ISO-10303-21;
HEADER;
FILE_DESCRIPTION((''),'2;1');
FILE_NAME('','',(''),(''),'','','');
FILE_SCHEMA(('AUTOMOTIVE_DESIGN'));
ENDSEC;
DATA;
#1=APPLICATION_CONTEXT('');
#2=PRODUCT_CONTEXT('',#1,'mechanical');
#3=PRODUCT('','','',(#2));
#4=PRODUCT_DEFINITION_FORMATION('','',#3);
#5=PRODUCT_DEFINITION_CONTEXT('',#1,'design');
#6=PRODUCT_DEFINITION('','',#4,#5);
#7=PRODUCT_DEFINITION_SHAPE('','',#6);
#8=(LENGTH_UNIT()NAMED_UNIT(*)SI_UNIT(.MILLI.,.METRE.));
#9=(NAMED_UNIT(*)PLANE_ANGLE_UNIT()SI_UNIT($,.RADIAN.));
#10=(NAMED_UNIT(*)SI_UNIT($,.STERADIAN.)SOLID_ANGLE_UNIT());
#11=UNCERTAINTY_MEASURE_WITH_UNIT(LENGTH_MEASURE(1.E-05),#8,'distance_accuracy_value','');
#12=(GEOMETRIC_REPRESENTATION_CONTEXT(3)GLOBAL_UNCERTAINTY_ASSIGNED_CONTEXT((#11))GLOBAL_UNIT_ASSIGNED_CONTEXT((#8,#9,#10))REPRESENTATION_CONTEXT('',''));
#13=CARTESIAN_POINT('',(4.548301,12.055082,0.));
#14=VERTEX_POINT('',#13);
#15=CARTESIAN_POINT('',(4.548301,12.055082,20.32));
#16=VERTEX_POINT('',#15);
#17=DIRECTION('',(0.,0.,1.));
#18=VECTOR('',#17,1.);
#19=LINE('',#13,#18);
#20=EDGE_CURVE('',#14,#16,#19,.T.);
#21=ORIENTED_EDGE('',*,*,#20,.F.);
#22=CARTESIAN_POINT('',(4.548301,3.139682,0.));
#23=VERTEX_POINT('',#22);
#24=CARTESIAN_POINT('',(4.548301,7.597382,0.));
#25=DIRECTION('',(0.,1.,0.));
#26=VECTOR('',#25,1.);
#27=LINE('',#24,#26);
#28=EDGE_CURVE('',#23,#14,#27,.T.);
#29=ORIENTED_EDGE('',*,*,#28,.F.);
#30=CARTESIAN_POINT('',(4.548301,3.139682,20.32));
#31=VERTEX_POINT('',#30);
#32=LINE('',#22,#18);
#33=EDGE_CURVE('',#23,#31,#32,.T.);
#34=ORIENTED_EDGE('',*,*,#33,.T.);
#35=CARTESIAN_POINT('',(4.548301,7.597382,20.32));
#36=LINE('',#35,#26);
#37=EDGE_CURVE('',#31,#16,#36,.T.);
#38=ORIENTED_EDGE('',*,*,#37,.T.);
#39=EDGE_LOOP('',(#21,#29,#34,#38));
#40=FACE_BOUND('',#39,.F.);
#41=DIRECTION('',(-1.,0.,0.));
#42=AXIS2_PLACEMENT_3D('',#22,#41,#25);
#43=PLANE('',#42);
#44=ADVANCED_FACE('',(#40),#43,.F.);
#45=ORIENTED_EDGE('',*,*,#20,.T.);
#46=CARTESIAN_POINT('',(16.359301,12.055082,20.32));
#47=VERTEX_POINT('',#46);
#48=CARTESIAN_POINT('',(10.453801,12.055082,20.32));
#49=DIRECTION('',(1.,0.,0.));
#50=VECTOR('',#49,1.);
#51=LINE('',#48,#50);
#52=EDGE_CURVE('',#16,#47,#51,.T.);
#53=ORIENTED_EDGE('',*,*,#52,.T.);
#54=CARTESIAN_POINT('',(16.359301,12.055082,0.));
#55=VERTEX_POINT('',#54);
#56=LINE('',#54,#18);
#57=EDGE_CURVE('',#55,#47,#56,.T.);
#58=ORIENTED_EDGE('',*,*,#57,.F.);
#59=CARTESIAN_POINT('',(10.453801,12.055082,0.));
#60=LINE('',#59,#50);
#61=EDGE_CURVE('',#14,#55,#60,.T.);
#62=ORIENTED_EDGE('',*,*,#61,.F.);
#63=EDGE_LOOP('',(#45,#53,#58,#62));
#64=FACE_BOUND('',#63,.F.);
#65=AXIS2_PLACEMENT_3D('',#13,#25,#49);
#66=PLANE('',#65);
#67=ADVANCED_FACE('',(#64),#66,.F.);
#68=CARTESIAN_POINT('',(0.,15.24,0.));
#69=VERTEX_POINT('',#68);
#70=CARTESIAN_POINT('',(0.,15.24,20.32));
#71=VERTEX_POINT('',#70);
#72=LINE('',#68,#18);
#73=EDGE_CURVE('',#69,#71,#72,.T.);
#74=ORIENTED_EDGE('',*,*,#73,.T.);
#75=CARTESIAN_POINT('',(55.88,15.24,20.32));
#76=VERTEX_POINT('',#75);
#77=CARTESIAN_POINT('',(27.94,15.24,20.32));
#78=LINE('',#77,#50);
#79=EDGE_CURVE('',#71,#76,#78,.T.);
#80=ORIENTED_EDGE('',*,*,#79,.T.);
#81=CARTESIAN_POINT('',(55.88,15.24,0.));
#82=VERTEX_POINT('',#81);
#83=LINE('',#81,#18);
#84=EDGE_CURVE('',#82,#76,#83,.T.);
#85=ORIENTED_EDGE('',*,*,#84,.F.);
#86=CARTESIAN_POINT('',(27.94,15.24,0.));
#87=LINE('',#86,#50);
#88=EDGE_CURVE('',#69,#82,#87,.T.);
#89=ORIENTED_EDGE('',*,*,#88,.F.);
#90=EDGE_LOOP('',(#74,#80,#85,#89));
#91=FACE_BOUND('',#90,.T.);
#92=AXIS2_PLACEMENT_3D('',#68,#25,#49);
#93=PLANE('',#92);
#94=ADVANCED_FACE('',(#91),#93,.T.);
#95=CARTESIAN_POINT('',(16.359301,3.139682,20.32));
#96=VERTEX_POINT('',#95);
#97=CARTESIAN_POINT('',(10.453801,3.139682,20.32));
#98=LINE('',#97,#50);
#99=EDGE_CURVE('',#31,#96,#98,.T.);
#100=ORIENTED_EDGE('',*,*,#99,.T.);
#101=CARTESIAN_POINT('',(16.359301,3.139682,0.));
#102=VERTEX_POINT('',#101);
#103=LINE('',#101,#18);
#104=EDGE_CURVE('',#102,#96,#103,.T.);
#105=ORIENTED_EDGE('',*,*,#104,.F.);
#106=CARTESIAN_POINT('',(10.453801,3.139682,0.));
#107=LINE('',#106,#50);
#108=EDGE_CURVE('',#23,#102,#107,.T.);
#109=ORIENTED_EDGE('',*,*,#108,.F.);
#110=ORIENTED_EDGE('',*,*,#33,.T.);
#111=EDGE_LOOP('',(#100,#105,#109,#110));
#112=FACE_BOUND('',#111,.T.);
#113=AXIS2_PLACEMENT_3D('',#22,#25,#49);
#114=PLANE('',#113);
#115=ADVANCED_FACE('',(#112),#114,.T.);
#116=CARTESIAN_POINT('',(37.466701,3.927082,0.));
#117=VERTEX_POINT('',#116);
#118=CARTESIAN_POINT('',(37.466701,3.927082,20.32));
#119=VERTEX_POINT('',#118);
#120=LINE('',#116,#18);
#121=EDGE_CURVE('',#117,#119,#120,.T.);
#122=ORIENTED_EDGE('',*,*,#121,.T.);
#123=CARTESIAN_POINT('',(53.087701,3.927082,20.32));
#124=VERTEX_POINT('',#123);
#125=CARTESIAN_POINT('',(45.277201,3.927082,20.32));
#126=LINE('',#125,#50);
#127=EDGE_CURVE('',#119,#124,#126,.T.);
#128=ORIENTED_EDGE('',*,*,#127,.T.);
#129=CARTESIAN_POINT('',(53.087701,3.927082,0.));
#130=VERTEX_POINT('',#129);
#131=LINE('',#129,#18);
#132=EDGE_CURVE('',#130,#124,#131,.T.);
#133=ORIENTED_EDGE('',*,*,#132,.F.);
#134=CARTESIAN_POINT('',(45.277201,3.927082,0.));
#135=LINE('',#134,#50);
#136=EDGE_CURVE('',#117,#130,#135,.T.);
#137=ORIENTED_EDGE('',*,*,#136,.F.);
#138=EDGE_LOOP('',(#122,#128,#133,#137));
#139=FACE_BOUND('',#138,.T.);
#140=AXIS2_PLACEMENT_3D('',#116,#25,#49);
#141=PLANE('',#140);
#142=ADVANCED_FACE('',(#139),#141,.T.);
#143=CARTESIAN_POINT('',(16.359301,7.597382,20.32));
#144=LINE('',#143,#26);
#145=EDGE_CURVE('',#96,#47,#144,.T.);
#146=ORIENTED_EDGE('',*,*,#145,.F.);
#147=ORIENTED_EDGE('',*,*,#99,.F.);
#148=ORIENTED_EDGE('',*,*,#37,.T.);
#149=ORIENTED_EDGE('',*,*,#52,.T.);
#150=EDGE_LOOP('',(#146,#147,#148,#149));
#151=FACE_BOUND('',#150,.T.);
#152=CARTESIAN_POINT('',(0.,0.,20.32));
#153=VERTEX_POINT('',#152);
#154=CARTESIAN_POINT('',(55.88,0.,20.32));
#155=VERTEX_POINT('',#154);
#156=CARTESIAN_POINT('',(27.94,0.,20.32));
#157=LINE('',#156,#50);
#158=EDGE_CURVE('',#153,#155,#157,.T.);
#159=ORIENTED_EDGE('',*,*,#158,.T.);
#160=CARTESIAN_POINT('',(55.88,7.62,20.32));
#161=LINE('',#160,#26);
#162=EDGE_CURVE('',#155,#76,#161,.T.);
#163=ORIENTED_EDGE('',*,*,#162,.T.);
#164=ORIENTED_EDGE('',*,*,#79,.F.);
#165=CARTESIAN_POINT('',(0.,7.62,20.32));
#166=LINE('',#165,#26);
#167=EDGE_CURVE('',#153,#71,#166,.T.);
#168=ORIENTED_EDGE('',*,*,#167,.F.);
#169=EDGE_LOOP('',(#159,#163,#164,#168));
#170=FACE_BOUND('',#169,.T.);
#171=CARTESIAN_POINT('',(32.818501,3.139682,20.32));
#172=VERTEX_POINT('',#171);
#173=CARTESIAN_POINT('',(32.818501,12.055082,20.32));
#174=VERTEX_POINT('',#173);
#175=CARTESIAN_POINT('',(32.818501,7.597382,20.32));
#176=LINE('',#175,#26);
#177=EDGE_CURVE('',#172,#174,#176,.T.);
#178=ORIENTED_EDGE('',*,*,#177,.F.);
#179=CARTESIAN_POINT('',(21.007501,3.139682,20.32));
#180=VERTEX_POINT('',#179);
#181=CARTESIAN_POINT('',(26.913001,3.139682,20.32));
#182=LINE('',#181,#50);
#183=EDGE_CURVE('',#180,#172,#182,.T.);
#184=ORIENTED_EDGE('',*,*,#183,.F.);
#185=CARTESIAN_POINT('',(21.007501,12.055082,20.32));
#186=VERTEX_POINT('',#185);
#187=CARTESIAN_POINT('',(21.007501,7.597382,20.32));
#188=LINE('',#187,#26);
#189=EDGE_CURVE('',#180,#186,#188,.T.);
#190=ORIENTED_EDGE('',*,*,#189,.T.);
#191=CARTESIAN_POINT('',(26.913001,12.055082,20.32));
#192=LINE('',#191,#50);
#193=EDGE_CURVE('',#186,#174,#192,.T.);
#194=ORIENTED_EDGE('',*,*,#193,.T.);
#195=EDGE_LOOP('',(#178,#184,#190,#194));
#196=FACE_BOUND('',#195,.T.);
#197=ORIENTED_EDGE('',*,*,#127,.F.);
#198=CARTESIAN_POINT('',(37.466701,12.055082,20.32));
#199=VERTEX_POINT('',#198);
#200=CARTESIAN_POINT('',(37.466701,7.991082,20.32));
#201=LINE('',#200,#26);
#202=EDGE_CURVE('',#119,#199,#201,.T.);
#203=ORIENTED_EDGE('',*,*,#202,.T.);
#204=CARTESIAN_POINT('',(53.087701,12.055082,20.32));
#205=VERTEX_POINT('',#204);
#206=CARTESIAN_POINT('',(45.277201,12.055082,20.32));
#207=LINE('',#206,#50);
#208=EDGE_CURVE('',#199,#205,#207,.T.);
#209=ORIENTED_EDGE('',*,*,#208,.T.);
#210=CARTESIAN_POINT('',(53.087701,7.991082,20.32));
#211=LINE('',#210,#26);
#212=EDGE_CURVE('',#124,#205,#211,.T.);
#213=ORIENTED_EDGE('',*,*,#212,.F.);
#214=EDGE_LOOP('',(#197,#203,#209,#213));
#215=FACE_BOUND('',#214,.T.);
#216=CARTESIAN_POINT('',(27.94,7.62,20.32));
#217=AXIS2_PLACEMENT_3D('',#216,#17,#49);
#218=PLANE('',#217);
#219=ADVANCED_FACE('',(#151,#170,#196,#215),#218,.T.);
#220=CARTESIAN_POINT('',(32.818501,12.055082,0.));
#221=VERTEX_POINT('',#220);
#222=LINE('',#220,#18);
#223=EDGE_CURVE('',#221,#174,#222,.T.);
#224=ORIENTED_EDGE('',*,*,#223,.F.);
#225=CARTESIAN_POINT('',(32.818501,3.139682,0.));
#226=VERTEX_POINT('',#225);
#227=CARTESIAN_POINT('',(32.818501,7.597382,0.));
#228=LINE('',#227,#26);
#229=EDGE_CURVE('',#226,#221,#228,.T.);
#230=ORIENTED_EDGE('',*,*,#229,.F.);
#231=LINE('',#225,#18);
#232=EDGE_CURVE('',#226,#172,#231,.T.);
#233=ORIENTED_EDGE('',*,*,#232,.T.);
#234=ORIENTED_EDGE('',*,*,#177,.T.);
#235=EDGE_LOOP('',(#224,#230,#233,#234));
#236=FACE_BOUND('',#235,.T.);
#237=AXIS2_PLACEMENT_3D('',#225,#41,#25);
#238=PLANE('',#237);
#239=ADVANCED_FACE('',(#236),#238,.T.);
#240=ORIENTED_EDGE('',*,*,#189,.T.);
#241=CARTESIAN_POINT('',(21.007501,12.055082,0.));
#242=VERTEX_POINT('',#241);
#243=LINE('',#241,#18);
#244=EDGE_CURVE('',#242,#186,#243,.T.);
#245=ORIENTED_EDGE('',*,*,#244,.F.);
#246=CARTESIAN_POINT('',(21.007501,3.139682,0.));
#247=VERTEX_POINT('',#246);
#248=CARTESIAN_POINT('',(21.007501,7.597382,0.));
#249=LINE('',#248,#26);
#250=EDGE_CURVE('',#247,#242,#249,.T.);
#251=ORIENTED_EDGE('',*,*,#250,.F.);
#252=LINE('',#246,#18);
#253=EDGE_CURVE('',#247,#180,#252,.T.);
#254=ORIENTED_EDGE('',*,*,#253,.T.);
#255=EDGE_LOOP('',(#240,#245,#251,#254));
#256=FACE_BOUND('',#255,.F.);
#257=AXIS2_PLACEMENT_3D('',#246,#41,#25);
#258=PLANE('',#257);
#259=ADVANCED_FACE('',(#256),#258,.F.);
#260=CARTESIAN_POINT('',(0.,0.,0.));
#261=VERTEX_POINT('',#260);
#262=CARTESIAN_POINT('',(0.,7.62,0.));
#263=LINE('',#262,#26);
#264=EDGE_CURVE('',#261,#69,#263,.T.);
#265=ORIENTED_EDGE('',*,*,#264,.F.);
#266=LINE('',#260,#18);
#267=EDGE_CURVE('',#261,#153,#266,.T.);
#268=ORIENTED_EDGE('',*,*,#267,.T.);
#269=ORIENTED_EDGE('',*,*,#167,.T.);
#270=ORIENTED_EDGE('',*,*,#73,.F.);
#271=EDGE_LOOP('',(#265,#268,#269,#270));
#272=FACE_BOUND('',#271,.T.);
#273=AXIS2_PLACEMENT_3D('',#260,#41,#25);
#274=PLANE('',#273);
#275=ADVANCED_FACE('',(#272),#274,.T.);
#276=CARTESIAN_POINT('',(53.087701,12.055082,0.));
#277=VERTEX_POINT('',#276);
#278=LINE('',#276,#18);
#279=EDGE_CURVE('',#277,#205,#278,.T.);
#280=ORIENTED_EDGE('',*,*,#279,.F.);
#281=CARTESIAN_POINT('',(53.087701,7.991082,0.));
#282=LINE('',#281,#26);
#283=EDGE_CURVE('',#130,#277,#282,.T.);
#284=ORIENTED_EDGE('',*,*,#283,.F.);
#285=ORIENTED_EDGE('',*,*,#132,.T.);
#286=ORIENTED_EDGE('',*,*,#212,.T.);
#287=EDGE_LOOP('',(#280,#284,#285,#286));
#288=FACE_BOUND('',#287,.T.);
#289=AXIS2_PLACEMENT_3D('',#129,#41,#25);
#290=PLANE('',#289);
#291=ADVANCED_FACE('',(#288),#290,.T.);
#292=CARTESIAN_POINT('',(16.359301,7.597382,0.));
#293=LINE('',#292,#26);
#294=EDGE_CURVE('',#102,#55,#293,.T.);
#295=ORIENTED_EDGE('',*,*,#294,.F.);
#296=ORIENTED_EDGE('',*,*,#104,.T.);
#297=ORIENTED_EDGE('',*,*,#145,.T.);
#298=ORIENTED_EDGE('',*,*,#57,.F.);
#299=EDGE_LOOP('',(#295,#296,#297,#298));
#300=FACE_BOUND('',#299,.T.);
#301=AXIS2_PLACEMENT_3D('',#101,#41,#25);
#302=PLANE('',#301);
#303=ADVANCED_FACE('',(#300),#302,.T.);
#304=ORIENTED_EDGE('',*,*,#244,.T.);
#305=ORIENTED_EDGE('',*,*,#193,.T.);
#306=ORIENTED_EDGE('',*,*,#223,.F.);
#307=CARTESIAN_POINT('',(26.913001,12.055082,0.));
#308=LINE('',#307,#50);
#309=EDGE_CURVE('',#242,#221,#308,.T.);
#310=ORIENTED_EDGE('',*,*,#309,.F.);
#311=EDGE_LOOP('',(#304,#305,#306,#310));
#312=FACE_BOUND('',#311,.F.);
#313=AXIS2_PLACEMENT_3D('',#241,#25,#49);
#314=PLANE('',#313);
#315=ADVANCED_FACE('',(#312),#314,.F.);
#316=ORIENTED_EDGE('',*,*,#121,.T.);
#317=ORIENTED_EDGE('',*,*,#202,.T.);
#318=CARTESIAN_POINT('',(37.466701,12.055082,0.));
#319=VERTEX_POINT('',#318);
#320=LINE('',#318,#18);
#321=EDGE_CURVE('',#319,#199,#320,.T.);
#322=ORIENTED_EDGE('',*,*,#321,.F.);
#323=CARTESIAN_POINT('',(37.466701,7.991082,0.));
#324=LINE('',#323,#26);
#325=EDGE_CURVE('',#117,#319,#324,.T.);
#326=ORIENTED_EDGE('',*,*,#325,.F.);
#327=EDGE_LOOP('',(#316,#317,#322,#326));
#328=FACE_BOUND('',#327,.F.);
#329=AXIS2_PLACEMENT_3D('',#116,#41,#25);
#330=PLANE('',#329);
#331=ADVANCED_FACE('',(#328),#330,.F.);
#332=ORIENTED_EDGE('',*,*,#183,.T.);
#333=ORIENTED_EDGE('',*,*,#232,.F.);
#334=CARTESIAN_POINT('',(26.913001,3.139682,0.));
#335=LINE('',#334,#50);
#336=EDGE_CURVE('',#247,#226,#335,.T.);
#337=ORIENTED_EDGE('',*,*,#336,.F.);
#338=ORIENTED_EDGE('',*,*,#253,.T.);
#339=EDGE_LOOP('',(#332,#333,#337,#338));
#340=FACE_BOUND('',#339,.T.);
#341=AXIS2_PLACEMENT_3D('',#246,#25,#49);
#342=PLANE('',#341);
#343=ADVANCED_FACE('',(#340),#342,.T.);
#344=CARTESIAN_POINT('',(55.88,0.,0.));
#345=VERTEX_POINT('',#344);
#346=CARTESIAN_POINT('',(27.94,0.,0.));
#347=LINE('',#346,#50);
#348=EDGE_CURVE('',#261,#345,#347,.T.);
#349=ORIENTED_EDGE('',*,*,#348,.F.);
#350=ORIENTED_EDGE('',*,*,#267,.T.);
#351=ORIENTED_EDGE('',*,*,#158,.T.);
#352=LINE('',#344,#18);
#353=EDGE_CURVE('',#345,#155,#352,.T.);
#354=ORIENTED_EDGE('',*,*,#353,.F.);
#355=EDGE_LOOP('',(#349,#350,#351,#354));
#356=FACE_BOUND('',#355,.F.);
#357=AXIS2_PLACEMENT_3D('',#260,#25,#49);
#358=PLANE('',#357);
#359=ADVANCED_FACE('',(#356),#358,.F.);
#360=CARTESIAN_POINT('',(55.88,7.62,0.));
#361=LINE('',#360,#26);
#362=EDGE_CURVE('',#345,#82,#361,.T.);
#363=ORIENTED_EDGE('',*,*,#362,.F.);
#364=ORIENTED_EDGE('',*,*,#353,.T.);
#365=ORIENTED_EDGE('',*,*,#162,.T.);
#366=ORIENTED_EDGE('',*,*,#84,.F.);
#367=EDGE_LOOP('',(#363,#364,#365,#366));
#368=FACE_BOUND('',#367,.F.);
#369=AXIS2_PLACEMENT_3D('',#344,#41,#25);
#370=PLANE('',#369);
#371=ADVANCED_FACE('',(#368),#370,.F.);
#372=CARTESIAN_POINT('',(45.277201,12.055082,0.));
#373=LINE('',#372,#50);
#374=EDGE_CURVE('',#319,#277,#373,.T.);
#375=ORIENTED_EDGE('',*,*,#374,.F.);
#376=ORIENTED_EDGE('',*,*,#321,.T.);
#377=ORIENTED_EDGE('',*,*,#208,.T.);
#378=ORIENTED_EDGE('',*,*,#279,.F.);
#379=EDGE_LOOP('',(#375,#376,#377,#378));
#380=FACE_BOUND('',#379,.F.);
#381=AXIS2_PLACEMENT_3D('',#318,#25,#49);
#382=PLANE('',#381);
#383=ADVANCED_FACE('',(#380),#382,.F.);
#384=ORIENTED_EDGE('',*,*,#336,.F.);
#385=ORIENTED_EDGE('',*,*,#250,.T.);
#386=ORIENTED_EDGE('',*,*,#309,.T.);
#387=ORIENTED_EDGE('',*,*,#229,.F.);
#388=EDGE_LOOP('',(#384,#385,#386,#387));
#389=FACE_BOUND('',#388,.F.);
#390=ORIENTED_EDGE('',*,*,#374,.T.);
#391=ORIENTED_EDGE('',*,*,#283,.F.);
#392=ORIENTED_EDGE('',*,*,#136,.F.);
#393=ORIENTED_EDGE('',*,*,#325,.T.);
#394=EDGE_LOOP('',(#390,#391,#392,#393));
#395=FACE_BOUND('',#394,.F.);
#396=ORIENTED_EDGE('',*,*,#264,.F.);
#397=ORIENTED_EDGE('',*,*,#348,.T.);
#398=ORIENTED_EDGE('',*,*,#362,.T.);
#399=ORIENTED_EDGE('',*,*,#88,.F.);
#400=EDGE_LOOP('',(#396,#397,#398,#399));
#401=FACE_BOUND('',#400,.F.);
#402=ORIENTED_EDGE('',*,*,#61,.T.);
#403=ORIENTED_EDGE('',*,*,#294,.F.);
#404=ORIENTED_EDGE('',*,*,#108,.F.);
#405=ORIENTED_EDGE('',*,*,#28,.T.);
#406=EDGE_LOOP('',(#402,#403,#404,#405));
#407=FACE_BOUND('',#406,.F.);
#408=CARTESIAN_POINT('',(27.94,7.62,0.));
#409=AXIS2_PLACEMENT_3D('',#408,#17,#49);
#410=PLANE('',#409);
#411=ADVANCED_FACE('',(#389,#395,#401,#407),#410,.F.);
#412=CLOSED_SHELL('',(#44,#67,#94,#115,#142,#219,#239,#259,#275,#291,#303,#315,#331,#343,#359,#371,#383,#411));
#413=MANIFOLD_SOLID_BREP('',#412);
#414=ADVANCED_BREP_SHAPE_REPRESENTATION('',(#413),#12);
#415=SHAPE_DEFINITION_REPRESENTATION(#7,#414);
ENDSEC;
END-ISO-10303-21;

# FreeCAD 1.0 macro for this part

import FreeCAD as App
import Part
import Sketcher
from FreeCAD import Vector
Q = App.Units.Quantity


def add_polygon(sketch, points):
    """Adds a closed chain of lines whose ends are joined by coincident constraints."""
    first, n = sketch.GeometryCount, len(points)
    for a, b in zip(points, points[1:] + points[:1]):
        sketch.addGeometry(Part.LineSegment(App.Vector(*a, 0), App.Vector(*b, 0)), False)
    for i in range(n):
        sketch.addConstraint(Sketcher.Constraint("Coincident", first + i, 2, first + (i + 1) % n, 1))

doc = App.newDocument("Part")
body = doc.addObject("PartDesign::Body", "Body")

# Sketch on XY plane
sketch1 = body.newObject("Sketcher::SketchObject", "Sketch")
sketch1.AttachmentSupport = (doc.getObject("XY_Plane"), [""])
sketch1.MapMode = "FlatFace"
add_polygon(sketch1, [(0, 15.24), (0, 0), (55.88, 0), (55.88, 15.24)])  # lines 0-3
add_polygon(sketch1, [(16.359301, 3.139682), (4.548301, 3.139682), (4.548301, 12.055082), (16.359301, 12.055082)])  # lines 4-7
add_polygon(sketch1, [(32.818501, 3.139682), (21.007501, 3.139682), (21.007501, 12.055082), (32.818501, 12.055082)])  # lines 8-11
add_polygon(sketch1, [(53.087701, 3.927082), (37.466701, 3.927082), (37.466701, 12.055082), (53.087701, 12.055082)])  # lines 12-15
sketch1.addConstraint(Sketcher.Constraint("Vertical", 0))
sketch1.addConstraint(Sketcher.Constraint("Horizontal", 1))
sketch1.addConstraint(Sketcher.Constraint("Vertical", 2))
sketch1.addConstraint(Sketcher.Constraint("Horizontal", 3))
sketch1.addConstraint(Sketcher.Constraint("Horizontal", 4))
sketch1.addConstraint(Sketcher.Constraint("Vertical", 5))
sketch1.addConstraint(Sketcher.Constraint("Horizontal", 6))
sketch1.addConstraint(Sketcher.Constraint("Vertical", 7))
sketch1.addConstraint(Sketcher.Constraint("Horizontal", 8))
sketch1.addConstraint(Sketcher.Constraint("Vertical", 9))
sketch1.addConstraint(Sketcher.Constraint("Horizontal", 10))
sketch1.addConstraint(Sketcher.Constraint("Vertical", 11))
sketch1.addConstraint(Sketcher.Constraint("Horizontal", 12))
sketch1.addConstraint(Sketcher.Constraint("Vertical", 13))
sketch1.addConstraint(Sketcher.Constraint("Horizontal", 14))
sketch1.addConstraint(Sketcher.Constraint("Vertical", 15))
sketch1.addConstraint(Sketcher.Constraint("Coincident", 0, 2, -1, 1))
sketch1.addConstraint(Sketcher.Constraint("Horizontal", 7, 2, 8, 2))
sketch1.addConstraint(Sketcher.Constraint("Horizontal", 6, 2, 9, 2))
sketch1.addConstraint(Sketcher.Constraint("Horizontal", 10, 2, 13, 2))
sketch1.addConstraint(Sketcher.Constraint("Equal", 6, 8))
sketch1.addConstraint(Sketcher.Constraint("DistanceX", 1, 1, 1, 2, Q("2.2 in")))
sketch1.addConstraint(Sketcher.Constraint("DistanceY", 0, 2, 0, 1, Q("0.6 in")))
sketch1.addConstraint(Sketcher.Constraint("DistanceY", 13, 1, 13, 2, Q("0.32 in")))
sketch1.addConstraint(Sketcher.Constraint("DistanceX", 4, 2, 4, 1, Q("0.465 in")))
sketch1.addConstraint(Sketcher.Constraint("DistanceX", 12, 2, 12, 1, Q("0.615 in")))
sketch1.addConstraint(Sketcher.Constraint("DistanceY", 5, 1, 5, 2, Q("0.351 in")))
sketch1.addConstraint(Sketcher.Constraint("DistanceX", 7, 2, 8, 2, Q("0.183 in")))
sketch1.addConstraint(Sketcher.Constraint("DistanceX", 11, 2, 12, 2, Q("0.183 in")))
sketch1.addConstraint(Sketcher.Constraint("DistanceX", -1, 1, 4, 2, 4.548301))
sketch1.addConstraint(Sketcher.Constraint("DistanceY", -1, 1, 12, 2, 3.927082))
pad1 = body.newObject("PartDesign::Pad", "Pad")
pad1.Profile = sketch1
pad1.Length = Q("0.8 in")

doc.recompute()
